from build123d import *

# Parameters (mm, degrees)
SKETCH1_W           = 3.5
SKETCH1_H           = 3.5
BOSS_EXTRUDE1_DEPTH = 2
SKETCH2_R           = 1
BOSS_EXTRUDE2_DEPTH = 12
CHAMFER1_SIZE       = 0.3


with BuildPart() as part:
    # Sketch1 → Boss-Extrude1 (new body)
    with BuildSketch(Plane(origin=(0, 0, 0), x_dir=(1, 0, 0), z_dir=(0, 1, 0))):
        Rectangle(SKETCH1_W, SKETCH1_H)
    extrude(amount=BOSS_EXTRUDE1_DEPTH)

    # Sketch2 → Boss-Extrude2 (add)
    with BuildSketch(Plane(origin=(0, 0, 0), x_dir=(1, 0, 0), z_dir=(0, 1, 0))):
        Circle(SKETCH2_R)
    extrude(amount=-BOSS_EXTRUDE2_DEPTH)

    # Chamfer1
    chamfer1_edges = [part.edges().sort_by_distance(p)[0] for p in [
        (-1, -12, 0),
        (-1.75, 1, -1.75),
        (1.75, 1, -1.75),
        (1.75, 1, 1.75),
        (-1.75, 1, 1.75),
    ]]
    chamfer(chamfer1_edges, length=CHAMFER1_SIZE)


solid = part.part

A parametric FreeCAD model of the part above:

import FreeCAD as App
import Part
import Sketcher
from FreeCAD import Vector


def edges_at(feature, points):
    """Names of the edges that pass closest to the given points."""
    edges = feature.Shape.Edges
    near = lambda p: min(range(len(edges)), key=lambda i: edges[i].distToShape(Part.Vertex(*p))[0])
    return sorted({f"Edge{near(p) + 1}" for p in points})

doc = App.newDocument("Part")
params = doc.addObject("Spreadsheet::Sheet", "Params")
for row, (alias, value) in enumerate([
    ("sketch1_width", "3.5 mm"),
    ("pad1_length", "2 mm"),
    ("sketch2_diameter", "2 mm"),
    ("pad2_length", "12 mm"),
    ("chamfer_size", "0.3 mm"),
], start=1):
    params.set(f"A{row}", alias)
    params.set(f"B{row}", "=" + value)
    params.setAlias(f"B{row}", alias)

body = doc.addObject("PartDesign::Body", "Body")

sketch1 = body.newObject("Sketcher::SketchObject", "Sketch")
sketch1.AttachmentSupport = (doc.getObject("XZ_Plane"), [""])
sketch1.MapMode = "FlatFace"
sketch1.addGeometry(Part.LineSegment(Vector(-1.8, -1.8, 0), Vector(-1.8, 1.8, 0)), False)
sketch1.addGeometry(Part.LineSegment(Vector(-1.8, 1.8, 0), Vector(1.8, 1.8, 0)), False)
sketch1.addGeometry(Part.LineSegment(Vector(1.8, 1.8, 0), Vector(1.8, -1.8, 0)), False)
sketch1.addGeometry(Part.LineSegment(Vector(1.8, -1.8, 0), Vector(-1.8, -1.8, 0)), False)
sketch1.addConstraint(Sketcher.Constraint("Coincident", 0, 2, 1, 1))
sketch1.addConstraint(Sketcher.Constraint("Coincident", 1, 2, 2, 1))
sketch1.addConstraint(Sketcher.Constraint("Coincident", 2, 2, 3, 1))
sketch1.addConstraint(Sketcher.Constraint("Coincident", 3, 2, 0, 1))
sketch1.addConstraint(Sketcher.Constraint("Vertical", 0))
sketch1.addConstraint(Sketcher.Constraint("Horizontal", 1))
sketch1.addConstraint(Sketcher.Constraint("Vertical", 2))
sketch1.addConstraint(Sketcher.Constraint("Horizontal", 3))
sketch1.addConstraint(Sketcher.Constraint("Symmetric", 0, 2, 2, 2, -1, 1))
sketch1.addConstraint(Sketcher.Constraint("Equal", 3, 0))
sketch1.addConstraint(Sketcher.Constraint("DistanceX", 1, 1, 1, 2, 3.5))
sketch1.setExpression("Constraints[10]", "Params.sketch1_width")
pad1 = body.newObject("PartDesign::Pad", "Pad")
pad1.Profile = sketch1
pad1.setExpression("Length", "Params.pad1_length")
pad1.Reversed = True

sketch2 = body.newObject("Sketcher::SketchObject", "Sketch001")
sketch2.AttachmentSupport = (doc.getObject("XZ_Plane"), [""])
sketch2.MapMode = "FlatFace"
sketch2.addGeometry(Part.Circle(Vector(0, 0, 0), Vector(0, 0, 1), 1), False)
sketch2.addConstraint(Sketcher.Constraint("Coincident", 0, 3, -1, 1))
sketch2.addConstraint(Sketcher.Constraint("Diameter", 0, 2.0))
sketch2.setExpression("Constraints[1]", "Params.sketch2_diameter")
pad2 = body.newObject("PartDesign::Pad", "Pad001")
pad2.Profile = sketch2
pad2.setExpression("Length", "Params.pad2_length")
doc.recompute()

chamfer = body.newObject("PartDesign::Chamfer", "Chamfer")
chamfer.Base = (pad2, edges_at(pad2, [
    (-1, -12, 0),
    (-1.75, 1, -1.75),
    (1.75, 1, -1.75),
    (1.75, 1, 1.75),
    (-1.75, 1, 1.75),
]))
chamfer.setExpression("Size", "Params.chamfer_size")

doc.recompute()
